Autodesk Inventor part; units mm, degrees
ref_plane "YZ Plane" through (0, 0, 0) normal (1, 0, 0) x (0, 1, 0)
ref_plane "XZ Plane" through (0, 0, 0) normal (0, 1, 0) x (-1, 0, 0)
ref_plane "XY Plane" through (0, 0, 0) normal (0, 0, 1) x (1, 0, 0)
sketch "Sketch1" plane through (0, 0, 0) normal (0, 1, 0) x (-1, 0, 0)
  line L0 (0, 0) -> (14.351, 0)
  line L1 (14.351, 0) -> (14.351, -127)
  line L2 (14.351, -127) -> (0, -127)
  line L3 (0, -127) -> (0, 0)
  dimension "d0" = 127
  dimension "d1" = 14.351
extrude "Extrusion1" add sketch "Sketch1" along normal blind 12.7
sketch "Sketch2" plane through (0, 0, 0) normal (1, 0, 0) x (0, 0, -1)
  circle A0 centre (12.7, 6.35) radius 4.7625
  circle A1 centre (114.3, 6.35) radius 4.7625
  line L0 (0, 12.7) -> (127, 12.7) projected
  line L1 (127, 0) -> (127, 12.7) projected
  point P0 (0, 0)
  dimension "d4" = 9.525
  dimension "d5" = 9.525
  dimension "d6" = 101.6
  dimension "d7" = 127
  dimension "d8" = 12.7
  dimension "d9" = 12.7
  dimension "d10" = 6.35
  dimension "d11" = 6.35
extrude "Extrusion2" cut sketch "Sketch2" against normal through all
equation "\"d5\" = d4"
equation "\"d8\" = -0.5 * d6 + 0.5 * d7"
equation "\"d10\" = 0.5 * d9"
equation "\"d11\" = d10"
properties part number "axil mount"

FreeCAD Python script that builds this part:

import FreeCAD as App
import Part
import Sketcher
Q = App.Units.Quantity

doc = App.newDocument("Part")
body = doc.addObject("PartDesign::Body", "Body")

sketch1 = body.newObject("Sketcher::SketchObject", "Sketch")
sketch1.AttachmentSupport = (doc.getObject("XZ_Plane"), [""])
sketch1.MapMode = "FlatFace"
sketch1.addGeometry([
    Part.LineSegment(App.Vector(-14, 0, 0), App.Vector(0, 0, 0)),
    Part.LineSegment(App.Vector(0, 0, 0), App.Vector(0, -127, 0)),
    Part.LineSegment(App.Vector(0, -127, 0), App.Vector(-14, -127, 0)),
    Part.LineSegment(App.Vector(-14, -127, 0), App.Vector(-14, 0, 0)),
], False)
sketch1.addConstraint([
    Sketcher.Constraint("Coincident", 0, 2, 1, 1),
    Sketcher.Constraint("Coincident", 1, 2, 2, 1),
    Sketcher.Constraint("Coincident", 2, 2, 3, 1),
    Sketcher.Constraint("Coincident", 3, 2, 0, 1),
    Sketcher.Constraint("Horizontal", 0),
    Sketcher.Constraint("Vertical", 1),
    Sketcher.Constraint("Horizontal", 2),
    Sketcher.Constraint("Vertical", 3),
    Sketcher.Constraint("Coincident", 0, 2, -1, 1),
    Sketcher.Constraint("DistanceY", 1, 2, 1, 1, Q("5 in")),
    Sketcher.Constraint("DistanceX", 0, 1, 0, 2, Q("0.565 in")),
])
pad1 = body.newObject("PartDesign::Pad", "Pad")
pad1.Profile = sketch1
pad1.Length = Q("0.5 in")
pad1.Reversed = True

sketch2 = body.newObject("Sketcher::SketchObject", "Sketch001")
sketch2.AttachmentSupport = (doc.getObject("YZ_Plane"), [""])
sketch2.MapMode = "FlatFace"
sketch2.addGeometry([
    Part.Circle(App.Vector(6.3, -12.7, 0), App.Vector(0, 0, 1), 4.8),
    Part.Circle(App.Vector(6.3, -114.3, 0), App.Vector(0, 0, 1), 4.8),
], False)
sketch2.addConstraint([
    Sketcher.Constraint("Equal", 0, 1),
    Sketcher.Constraint("Vertical", 0, 3, 1, 3),
    Sketcher.Constraint("Diameter", 0, Q("0.375 in")),
    Sketcher.Constraint("DistanceY", 1, 3, 0, 3, Q("4 in")),
    Sketcher.Constraint("DistanceY", 0, 3, -1, 1, Q("0.5 in")),
    Sketcher.Constraint("DistanceX", -1, 1, 0, 3, Q("0.25 in")),
])
pocket1 = body.newObject("PartDesign::Pocket", "Pocket")
pocket1.Profile = sketch2
pocket1.Type = "ThroughAll"

doc.recompute()
